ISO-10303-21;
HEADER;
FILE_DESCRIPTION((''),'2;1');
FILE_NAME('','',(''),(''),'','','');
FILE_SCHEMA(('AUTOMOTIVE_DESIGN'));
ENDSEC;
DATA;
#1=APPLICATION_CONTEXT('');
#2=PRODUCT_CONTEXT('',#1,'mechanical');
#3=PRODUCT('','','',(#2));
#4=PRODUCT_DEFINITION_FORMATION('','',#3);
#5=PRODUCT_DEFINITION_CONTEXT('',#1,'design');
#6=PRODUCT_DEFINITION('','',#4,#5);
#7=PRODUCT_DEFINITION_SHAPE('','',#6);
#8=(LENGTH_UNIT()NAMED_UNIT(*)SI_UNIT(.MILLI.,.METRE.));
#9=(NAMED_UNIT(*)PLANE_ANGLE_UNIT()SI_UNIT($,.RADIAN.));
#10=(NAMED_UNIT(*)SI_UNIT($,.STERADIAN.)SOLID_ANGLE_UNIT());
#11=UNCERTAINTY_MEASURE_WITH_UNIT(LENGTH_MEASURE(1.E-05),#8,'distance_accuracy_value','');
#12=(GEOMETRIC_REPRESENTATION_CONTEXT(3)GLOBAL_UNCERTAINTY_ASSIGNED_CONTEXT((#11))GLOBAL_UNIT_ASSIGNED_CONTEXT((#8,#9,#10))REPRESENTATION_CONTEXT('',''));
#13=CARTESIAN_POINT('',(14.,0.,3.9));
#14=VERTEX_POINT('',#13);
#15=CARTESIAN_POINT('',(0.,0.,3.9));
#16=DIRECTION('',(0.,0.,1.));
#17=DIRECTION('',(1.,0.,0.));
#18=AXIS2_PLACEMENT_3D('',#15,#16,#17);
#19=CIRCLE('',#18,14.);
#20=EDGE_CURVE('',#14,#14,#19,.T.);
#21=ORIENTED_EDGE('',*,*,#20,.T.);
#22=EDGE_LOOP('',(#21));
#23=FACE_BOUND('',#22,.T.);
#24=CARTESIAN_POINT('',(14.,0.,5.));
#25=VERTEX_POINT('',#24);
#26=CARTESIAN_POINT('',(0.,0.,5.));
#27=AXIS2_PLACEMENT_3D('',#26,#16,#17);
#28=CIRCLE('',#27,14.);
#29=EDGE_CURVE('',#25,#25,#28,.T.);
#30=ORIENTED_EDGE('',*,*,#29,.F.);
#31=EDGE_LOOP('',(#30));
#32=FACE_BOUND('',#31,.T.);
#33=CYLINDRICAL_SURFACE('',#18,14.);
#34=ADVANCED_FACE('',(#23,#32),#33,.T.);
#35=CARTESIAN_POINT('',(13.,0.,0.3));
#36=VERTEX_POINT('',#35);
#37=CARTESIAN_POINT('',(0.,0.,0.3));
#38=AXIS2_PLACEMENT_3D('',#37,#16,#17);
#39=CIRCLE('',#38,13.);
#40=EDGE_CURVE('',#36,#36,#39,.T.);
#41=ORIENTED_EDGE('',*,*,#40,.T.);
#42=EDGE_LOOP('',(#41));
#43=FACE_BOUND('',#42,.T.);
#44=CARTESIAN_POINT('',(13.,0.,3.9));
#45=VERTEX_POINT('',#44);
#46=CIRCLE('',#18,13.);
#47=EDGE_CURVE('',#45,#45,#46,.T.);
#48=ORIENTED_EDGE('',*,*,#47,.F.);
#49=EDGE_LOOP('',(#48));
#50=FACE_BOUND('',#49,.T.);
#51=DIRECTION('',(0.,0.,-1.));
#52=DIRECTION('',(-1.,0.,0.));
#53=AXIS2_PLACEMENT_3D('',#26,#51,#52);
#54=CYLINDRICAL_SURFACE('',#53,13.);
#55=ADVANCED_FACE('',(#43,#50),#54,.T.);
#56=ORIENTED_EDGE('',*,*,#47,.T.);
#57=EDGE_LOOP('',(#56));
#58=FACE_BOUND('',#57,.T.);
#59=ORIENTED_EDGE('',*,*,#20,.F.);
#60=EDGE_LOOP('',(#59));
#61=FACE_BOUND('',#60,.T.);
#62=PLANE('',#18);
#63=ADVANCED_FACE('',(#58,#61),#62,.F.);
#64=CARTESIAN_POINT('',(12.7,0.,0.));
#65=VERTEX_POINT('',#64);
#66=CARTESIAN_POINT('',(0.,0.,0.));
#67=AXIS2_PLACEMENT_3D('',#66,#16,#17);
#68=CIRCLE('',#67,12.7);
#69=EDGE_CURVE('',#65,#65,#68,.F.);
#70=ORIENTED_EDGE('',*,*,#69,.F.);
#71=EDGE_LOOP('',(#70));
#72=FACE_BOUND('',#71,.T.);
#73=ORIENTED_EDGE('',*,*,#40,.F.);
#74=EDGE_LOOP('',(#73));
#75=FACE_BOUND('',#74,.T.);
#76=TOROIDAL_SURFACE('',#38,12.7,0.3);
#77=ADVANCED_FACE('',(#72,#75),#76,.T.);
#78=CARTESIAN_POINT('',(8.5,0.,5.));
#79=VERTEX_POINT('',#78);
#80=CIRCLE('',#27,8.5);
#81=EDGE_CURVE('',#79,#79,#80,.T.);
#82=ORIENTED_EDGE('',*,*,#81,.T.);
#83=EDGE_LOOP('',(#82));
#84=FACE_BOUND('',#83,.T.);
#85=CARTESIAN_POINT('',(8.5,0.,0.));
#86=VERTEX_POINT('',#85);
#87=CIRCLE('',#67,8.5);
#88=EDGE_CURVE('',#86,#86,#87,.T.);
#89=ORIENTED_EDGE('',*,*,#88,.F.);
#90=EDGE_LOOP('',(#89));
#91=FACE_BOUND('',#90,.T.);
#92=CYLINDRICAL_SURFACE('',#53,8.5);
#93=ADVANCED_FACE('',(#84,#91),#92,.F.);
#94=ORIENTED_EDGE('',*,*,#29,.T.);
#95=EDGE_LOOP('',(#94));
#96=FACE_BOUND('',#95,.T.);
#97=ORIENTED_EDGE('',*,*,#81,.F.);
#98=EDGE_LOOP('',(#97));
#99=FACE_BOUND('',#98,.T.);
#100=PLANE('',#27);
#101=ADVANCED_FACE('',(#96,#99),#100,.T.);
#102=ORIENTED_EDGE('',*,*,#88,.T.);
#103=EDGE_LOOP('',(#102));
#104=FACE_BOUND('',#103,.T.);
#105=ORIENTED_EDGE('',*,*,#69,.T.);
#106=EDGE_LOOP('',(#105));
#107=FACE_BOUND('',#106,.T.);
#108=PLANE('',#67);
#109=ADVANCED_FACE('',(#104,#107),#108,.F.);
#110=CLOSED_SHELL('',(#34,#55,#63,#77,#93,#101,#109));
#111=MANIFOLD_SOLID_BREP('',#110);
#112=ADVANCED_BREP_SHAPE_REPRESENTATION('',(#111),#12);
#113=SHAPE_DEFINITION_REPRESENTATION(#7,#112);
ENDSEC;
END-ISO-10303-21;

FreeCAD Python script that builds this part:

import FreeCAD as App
import Part
import Sketcher

V = App.Vector


def edges_at(feature, points):
    """Names of the edges that pass closest to the given points."""
    edges = feature.Shape.Edges
    near = lambda p: min(range(len(edges)), key=lambda i: edges[i].distToShape(Part.Vertex(*p))[0])
    return sorted({f"Edge{near(p) + 1}" for p in points})

doc = App.newDocument("Part")
body = doc.addObject("PartDesign::Body", "Body")

# Sketch on XY plane
sketch1 = body.newObject("Sketcher::SketchObject", "Sketch")
sketch1.AttachmentSupport = (doc.getObject("XY_Plane"), [""])
sketch1.MapMode = "FlatFace"
sketch1.addGeometry([
    Part.Circle(V(0, 0, 0), V(0, 0, 1), 13),
    Part.Circle(V(0, 0, 0), V(0, 0, 1), 8),
], False)
sketch1.addConstraint([
    Sketcher.Constraint("Coincident", 0, 3, -1, 1),
    Sketcher.Constraint("Coincident", 1, 3, -1, 1),
    Sketcher.Constraint("Diameter", 0, 26.0),
    Sketcher.Constraint("Diameter", 1, 17.0),
])
pad1 = body.newObject("PartDesign::Pad", "Pad")
pad1.Profile = sketch1
pad1.Length = 5

# Sketch on XY plane
sketch2 = body.newObject("Sketcher::SketchObject", "Sketch001")
sketch2.AttachmentSupport = (doc.getObject("XY_Plane"), [""])
sketch2.MapMode = "FlatFace"
sketch2.AttachmentOffset = App.Placement(V(0, 0, 3.9), App.Rotation())
sketch2.addGeometry([
    Part.Circle(V(0, 0, 0), V(0, 0, 1), 14),
    Part.Circle(V(0, 0, 0), V(0, 0, 1), 13),
], False)
sketch2.addConstraint([
    Sketcher.Constraint("Coincident", 0, 3, -1, 1),
    Sketcher.Constraint("Coincident", 1, 3, -1, 1),
    Sketcher.Constraint("Diameter", 0, 28.0),
    Sketcher.Constraint("Diameter", 1, 26.0),
])
pad2 = body.newObject("PartDesign::Pad", "Pad001")
pad2.Profile = sketch2
pad2.Length = 1.1
doc.recompute()

fillet = body.newObject("PartDesign::Fillet", "Fillet")
fillet.Base = (pad2, edges_at(pad2, [(-13, 0, 0)]))
fillet.Radius = 0.3

doc.recompute()
